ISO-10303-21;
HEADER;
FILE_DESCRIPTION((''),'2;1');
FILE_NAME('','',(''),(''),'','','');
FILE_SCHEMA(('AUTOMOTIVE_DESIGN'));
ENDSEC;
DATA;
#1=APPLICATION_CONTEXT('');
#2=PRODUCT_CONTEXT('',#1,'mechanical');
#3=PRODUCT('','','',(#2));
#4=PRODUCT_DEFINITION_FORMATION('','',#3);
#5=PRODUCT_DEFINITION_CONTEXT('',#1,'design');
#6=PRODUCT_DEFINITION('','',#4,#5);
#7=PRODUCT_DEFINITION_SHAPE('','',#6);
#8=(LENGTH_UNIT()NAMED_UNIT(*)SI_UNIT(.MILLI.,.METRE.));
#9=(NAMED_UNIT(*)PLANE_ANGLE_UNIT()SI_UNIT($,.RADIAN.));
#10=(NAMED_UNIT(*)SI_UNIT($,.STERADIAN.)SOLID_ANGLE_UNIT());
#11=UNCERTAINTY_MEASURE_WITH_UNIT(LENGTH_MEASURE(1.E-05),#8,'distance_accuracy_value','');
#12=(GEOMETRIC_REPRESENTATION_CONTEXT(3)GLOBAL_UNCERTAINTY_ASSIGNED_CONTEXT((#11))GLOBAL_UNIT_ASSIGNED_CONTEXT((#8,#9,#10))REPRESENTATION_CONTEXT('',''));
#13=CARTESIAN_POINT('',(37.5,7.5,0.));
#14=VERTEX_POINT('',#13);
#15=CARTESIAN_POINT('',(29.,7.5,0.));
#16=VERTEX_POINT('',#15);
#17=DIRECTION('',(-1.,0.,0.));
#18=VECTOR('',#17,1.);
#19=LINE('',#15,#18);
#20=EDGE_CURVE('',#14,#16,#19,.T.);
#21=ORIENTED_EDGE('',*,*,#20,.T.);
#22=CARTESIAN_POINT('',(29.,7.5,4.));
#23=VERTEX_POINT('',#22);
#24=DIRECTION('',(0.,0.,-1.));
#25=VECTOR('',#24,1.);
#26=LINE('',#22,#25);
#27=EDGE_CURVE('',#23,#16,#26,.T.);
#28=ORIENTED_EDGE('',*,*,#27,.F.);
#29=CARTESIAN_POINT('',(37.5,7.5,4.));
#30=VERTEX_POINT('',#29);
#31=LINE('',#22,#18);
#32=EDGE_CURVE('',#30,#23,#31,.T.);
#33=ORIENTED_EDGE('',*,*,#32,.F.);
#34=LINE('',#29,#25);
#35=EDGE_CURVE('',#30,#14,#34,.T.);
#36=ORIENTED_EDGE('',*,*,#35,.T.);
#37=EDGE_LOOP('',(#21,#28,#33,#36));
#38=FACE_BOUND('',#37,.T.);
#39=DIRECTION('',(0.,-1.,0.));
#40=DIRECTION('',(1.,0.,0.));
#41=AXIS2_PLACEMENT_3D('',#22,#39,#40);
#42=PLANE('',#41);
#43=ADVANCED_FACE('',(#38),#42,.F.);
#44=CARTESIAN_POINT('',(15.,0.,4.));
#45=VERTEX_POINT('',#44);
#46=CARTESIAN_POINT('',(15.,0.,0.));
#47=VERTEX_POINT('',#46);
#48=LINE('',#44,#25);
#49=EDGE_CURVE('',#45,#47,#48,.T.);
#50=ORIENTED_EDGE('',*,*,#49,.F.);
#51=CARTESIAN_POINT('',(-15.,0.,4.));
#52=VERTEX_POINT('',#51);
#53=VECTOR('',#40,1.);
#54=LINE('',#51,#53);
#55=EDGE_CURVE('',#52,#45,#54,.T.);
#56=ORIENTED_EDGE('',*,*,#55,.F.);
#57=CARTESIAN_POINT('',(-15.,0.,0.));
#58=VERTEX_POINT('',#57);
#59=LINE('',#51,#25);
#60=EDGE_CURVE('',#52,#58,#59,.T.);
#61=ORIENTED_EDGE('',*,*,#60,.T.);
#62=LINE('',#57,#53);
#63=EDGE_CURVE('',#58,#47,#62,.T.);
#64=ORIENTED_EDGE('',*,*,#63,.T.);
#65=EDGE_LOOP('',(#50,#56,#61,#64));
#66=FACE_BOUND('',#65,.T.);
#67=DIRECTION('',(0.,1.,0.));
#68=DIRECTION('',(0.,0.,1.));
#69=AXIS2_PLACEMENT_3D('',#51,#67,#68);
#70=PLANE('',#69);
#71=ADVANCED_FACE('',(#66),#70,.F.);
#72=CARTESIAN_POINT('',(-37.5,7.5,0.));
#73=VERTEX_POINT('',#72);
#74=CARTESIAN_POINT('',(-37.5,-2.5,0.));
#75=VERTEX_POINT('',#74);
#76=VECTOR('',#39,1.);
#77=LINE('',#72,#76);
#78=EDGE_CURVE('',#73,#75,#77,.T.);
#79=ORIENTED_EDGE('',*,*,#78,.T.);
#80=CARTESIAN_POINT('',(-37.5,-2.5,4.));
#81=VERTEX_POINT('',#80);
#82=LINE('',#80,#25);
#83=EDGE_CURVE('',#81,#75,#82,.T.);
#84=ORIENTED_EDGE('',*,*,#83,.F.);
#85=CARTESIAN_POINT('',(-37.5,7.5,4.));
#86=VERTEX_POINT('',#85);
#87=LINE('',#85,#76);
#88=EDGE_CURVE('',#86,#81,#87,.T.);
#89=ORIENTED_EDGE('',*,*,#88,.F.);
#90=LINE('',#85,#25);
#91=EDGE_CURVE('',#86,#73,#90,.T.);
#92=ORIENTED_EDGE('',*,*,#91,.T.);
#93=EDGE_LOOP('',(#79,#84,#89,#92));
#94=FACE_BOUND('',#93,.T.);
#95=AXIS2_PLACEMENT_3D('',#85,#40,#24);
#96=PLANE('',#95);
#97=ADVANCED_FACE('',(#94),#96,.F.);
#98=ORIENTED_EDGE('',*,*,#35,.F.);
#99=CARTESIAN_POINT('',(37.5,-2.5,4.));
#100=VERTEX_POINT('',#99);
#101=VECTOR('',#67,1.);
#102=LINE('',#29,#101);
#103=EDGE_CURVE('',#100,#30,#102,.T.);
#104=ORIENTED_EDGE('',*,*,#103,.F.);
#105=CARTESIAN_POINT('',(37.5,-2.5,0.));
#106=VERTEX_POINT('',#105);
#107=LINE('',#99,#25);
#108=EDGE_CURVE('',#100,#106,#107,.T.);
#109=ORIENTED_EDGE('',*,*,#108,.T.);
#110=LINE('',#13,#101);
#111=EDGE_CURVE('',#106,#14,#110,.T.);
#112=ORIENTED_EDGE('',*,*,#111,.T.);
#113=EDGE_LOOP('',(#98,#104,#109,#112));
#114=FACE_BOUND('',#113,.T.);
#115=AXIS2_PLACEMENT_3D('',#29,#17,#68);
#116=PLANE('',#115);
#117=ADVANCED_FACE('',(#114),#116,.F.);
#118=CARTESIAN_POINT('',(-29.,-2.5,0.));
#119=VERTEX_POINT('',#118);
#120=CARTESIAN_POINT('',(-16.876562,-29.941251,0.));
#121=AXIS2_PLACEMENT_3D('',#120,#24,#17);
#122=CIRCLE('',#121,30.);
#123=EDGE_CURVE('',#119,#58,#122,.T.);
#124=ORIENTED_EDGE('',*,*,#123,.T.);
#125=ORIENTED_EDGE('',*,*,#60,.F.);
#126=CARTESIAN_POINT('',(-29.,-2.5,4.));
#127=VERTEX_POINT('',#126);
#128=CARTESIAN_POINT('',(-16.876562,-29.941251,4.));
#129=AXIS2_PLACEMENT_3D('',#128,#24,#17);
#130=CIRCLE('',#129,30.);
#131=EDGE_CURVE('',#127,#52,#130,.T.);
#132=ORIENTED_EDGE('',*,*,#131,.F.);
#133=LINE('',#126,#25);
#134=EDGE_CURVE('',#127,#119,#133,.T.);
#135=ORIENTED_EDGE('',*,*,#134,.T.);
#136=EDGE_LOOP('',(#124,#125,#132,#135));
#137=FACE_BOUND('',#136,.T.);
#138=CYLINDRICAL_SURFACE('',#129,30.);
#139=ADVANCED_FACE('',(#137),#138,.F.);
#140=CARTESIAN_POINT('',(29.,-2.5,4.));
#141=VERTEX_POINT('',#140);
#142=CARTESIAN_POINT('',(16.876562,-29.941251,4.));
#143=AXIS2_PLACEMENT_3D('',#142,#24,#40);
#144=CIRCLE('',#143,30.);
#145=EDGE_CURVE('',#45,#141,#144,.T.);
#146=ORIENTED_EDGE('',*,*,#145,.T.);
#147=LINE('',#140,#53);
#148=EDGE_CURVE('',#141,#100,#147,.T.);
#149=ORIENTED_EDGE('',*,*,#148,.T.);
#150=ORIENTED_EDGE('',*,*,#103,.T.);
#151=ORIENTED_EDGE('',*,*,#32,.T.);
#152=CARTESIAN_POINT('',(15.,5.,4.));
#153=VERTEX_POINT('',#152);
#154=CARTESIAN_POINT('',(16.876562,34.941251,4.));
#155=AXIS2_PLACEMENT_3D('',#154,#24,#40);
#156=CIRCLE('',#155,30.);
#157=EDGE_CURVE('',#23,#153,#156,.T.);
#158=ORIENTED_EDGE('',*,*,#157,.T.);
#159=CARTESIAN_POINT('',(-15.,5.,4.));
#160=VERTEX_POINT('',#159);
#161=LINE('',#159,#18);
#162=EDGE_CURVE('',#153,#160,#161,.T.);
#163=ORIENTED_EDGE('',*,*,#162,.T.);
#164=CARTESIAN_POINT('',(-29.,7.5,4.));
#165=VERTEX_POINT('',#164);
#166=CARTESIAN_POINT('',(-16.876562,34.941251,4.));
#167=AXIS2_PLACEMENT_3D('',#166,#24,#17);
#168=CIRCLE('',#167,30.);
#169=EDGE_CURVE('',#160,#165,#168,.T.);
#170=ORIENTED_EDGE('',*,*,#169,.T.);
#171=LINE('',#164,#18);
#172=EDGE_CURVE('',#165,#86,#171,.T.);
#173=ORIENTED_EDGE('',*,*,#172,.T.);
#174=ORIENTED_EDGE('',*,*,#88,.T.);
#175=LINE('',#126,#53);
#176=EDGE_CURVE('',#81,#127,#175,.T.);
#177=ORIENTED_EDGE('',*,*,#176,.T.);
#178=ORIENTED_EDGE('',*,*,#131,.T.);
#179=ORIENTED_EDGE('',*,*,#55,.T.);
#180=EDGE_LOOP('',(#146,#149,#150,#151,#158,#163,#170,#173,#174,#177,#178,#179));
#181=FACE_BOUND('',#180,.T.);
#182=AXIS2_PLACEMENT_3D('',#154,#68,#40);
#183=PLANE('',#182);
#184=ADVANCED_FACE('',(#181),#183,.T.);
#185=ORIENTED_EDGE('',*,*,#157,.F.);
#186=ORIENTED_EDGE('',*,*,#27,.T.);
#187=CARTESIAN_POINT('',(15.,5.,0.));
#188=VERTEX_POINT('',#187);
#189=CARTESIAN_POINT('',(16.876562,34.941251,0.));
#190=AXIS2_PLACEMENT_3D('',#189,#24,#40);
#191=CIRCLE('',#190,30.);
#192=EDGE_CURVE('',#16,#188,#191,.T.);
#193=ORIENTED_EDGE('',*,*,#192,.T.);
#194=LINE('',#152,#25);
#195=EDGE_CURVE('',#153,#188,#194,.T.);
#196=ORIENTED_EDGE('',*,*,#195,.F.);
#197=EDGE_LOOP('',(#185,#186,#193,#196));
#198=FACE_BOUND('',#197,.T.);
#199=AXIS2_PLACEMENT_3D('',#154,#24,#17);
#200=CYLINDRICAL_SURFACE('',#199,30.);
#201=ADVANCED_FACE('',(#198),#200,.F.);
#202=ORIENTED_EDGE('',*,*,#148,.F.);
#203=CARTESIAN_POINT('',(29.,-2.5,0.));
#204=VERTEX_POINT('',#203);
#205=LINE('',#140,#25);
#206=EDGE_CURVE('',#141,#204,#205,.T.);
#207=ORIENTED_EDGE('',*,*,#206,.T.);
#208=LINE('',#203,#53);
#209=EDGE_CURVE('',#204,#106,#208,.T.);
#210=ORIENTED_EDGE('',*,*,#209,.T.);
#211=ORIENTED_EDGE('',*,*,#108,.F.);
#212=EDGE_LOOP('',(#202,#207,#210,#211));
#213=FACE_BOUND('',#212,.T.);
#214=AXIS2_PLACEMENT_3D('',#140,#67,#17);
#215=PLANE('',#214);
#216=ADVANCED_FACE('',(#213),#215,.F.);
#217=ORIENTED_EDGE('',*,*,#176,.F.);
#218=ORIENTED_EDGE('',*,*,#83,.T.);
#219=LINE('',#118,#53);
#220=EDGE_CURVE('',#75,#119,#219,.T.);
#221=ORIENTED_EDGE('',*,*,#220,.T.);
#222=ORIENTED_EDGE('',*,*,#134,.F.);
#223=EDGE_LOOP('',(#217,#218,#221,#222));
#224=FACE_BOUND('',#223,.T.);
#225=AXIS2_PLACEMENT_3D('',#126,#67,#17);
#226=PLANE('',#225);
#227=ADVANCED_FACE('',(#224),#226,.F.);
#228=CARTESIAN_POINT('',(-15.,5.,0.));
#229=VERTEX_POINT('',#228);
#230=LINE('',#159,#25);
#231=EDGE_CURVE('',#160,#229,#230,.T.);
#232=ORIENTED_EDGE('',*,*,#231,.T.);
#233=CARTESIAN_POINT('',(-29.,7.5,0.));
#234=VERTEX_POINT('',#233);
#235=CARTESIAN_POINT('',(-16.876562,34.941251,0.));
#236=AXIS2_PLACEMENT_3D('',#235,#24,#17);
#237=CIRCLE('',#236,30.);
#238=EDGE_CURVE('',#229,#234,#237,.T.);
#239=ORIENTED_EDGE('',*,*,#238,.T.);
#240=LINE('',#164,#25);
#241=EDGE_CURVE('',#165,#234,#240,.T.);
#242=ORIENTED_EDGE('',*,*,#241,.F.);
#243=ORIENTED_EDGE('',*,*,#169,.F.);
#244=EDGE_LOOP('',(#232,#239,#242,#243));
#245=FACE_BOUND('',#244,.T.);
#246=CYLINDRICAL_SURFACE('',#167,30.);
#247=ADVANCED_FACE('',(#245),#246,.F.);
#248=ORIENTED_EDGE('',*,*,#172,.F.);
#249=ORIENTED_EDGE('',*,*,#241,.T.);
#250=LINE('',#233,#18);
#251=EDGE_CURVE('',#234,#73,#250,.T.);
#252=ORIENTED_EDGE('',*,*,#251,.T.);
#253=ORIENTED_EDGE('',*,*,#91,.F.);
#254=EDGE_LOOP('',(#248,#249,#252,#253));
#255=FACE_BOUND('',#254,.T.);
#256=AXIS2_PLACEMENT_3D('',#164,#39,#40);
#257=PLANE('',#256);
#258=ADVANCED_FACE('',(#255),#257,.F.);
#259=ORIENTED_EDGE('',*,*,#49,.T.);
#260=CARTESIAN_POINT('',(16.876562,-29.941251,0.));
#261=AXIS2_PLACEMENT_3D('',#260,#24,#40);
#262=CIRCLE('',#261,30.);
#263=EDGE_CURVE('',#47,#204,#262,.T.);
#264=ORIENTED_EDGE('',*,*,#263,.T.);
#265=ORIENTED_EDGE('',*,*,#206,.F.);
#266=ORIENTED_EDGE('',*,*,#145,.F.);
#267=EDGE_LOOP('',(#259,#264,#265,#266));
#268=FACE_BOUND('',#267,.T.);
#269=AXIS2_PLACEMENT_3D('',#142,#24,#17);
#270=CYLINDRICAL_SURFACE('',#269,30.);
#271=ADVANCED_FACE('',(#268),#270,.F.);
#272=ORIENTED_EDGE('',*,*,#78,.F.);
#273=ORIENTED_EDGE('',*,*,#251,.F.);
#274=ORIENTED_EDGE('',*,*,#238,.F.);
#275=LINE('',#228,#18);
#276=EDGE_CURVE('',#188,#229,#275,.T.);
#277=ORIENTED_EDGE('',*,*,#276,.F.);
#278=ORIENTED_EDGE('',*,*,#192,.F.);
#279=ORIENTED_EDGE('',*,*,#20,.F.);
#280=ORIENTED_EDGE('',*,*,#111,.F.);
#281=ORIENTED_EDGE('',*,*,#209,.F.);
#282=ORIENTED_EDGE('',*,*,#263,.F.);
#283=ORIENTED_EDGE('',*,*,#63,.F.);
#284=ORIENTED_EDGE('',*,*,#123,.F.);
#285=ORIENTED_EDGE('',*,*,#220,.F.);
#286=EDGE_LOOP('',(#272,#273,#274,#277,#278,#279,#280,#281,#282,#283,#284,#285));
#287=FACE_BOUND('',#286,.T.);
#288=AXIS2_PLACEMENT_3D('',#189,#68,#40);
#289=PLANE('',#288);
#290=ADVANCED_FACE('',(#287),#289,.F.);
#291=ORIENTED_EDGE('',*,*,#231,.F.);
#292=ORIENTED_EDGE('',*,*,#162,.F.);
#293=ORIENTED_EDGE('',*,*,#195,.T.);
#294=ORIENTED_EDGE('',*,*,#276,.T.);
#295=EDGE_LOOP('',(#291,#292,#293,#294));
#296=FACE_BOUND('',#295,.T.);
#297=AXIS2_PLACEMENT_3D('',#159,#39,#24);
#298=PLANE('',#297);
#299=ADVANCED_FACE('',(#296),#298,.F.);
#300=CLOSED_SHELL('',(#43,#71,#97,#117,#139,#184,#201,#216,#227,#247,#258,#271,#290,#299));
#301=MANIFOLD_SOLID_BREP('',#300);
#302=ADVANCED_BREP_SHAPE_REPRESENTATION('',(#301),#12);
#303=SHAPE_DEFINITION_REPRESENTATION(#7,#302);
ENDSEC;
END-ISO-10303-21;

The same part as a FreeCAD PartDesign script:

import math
import FreeCAD as App
import Part
import Sketcher
Q = App.Units.Quantity

doc = App.newDocument("Part")
body = doc.addObject("PartDesign::Body", "Body")

sketch1 = body.newObject("Sketcher::SketchObject", "Sketch")
sketch1.AttachmentSupport = (doc.getObject("XY_Plane"), [""])
sketch1.MapMode = "FlatFace"
sketch1.addGeometry([
    Part.LineSegment(App.Vector(-15, 0, 0), App.Vector(15, 0, 0)),
    Part.ArcOfCircle(Part.Circle(App.Vector(17, -30, 0), App.Vector(0, 0, 1), 30), math.radians(66), math.radians(94)),
    Part.LineSegment(App.Vector(29, -2, 0), App.Vector(38, -2, 0)),
    Part.LineSegment(App.Vector(38, -2, 0), App.Vector(38, 8, 0)),
    Part.LineSegment(App.Vector(38, 8, 0), App.Vector(29, 8, 0)),
    Part.ArcOfCircle(Part.Circle(App.Vector(17, 35, 0), App.Vector(0, 0, 1), 30), math.radians(-94), math.radians(-66)),
    Part.LineSegment(App.Vector(15, 5, 0), App.Vector(-15, 5, 0)),
    Part.ArcOfCircle(Part.Circle(App.Vector(-17, 35, 0), App.Vector(0, 0, 1), 30), math.radians(-114), math.radians(-86)),
    Part.LineSegment(App.Vector(-29, 8, 0), App.Vector(-38, 8, 0)),
    Part.LineSegment(App.Vector(-38, 8, 0), App.Vector(-38, -2, 0)),
    Part.LineSegment(App.Vector(-38, -2, 0), App.Vector(-29, -2, 0)),
    Part.ArcOfCircle(Part.Circle(App.Vector(-17, -30, 0), App.Vector(0, 0, 1), 30), math.radians(86), math.radians(114)),
], False)
sketch1.addConstraint([
    Sketcher.Constraint("Coincident", 0, 2, 1, 2),
    Sketcher.Constraint("Coincident", 1, 1, 2, 1),
    Sketcher.Constraint("Coincident", 2, 2, 3, 1),
    Sketcher.Constraint("Coincident", 3, 2, 4, 1),
    Sketcher.Constraint("Coincident", 4, 2, 5, 2),
    Sketcher.Constraint("Coincident", 5, 1, 6, 1),
    Sketcher.Constraint("Coincident", 6, 2, 7, 2),
    Sketcher.Constraint("Coincident", 7, 1, 8, 1),
    Sketcher.Constraint("Coincident", 8, 2, 9, 1),
    Sketcher.Constraint("Coincident", 9, 2, 10, 1),
    Sketcher.Constraint("Coincident", 10, 2, 11, 2),
    Sketcher.Constraint("Coincident", 11, 1, 0, 1),
    Sketcher.Constraint("Horizontal", 0),
    Sketcher.Constraint("Horizontal", 2),
    Sketcher.Constraint("Vertical", 3),
    Sketcher.Constraint("Horizontal", 4),
    Sketcher.Constraint("Horizontal", 6),
    Sketcher.Constraint("Horizontal", 8),
    Sketcher.Constraint("Vertical", 9),
    Sketcher.Constraint("Horizontal", 10),
    Sketcher.Constraint("Equal", 1, 5),
    Sketcher.Constraint("Equal", 5, 7),
    Sketcher.Constraint("Equal", 7, 11),
    Sketcher.Constraint("Symmetric", 0, 2, 11, 1, -1, 1),
    Sketcher.Constraint("Symmetric", 5, 3, 7, 3, -2),
    Sketcher.Constraint("Symmetric", 3, 2, 8, 2, -2),
    Sketcher.Constraint("Symmetric", 1, 1, 10, 2, -2),
    Sketcher.Constraint("Vertical", 1, 3, 5, 3),
    Sketcher.Constraint("Vertical", 1, 1, 4, 2),
    Sketcher.Constraint("Vertical", 0, 2, 5, 1),
    Sketcher.Constraint("Radius", 1, Q("30 mm")),
    Sketcher.Constraint("DistanceX", 0, 1, 0, 2, Q("30 mm")),
    Sketcher.Constraint("DistanceY", 3, 1, 3, 2, Q("10 mm")),
    Sketcher.Constraint("DistanceX", 2, 1, 2, 2, Q("8.5 mm")),
    Sketcher.Constraint("DistanceX", -1, 1, 1, 1, Q("29 mm")),
    Sketcher.Constraint("DistanceY", -1, 1, 5, 1, Q("5 mm")),
])
pad1 = body.newObject("PartDesign::Pad", "Pad")
pad1.Profile = sketch1
pad1.Length = 4

doc.recompute()
